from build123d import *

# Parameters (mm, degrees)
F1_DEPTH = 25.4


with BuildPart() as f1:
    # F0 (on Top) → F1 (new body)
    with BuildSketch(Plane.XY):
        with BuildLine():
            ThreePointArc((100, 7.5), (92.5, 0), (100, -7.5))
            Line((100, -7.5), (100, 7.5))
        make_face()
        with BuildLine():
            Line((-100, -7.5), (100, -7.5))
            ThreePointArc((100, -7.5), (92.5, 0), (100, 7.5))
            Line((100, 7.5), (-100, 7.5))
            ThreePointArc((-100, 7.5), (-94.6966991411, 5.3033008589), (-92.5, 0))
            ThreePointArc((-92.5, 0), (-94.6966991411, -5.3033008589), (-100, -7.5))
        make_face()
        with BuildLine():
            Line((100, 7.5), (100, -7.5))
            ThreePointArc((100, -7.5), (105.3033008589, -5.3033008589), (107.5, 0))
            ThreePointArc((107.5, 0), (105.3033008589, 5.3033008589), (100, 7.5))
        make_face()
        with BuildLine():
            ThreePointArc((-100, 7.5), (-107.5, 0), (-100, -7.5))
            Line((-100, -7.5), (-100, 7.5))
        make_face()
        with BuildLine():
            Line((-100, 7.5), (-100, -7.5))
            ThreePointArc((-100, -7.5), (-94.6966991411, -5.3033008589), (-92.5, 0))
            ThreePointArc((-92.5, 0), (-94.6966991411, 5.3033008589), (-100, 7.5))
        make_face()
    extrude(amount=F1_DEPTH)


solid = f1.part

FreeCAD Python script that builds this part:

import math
import FreeCAD as App
import Part
import Sketcher
from FreeCAD import Vector
Q = App.Units.Quantity

doc = App.newDocument("Part")
body = doc.addObject("PartDesign::Body", "Body")

sketch1 = body.newObject("Sketcher::SketchObject", "Sketch")
sketch1.AttachmentSupport = (doc.getObject("XY_Plane"), [""])
sketch1.MapMode = "FlatFace"
sketch1.addGeometry([
    Part.LineSegment(Vector(100, 7.5, 0), Vector(-100, 7.5, 0)),
    Part.ArcOfCircle(Part.Circle(Vector(-100, 0, 0), Vector(0, 0, 1), 7.5), math.radians(90), math.radians(270)),
    Part.LineSegment(Vector(-100, -7.5, 0), Vector(100, -7.5, 0)),
    Part.ArcOfCircle(Part.Circle(Vector(100, 0, 0), Vector(0, 0, 1), 7.5), math.radians(-90), math.radians(90)),
], False)
sketch1.addConstraint([
    Sketcher.Constraint("Tangent", 0, 2, 1, 1),
    Sketcher.Constraint("Tangent", 1, 2, 2, 1),
    Sketcher.Constraint("Tangent", 2, 2, 3, 1),
    Sketcher.Constraint("Tangent", 3, 2, 0, 1),
    Sketcher.Constraint("Horizontal", 0),
    Sketcher.Constraint("Horizontal", 2),
    Sketcher.Constraint("Symmetric", 1, 3, 3, 3, -1, 1),
    Sketcher.Constraint("Radius", 1, Q("7.5 mm")),
    Sketcher.Constraint("DistanceX", 0, 2, 0, 1, Q("200 mm")),
])
pad1 = body.newObject("PartDesign::Pad", "Pad")
pad1.Profile = sketch1
pad1.Length = 25.4

doc.recompute()
